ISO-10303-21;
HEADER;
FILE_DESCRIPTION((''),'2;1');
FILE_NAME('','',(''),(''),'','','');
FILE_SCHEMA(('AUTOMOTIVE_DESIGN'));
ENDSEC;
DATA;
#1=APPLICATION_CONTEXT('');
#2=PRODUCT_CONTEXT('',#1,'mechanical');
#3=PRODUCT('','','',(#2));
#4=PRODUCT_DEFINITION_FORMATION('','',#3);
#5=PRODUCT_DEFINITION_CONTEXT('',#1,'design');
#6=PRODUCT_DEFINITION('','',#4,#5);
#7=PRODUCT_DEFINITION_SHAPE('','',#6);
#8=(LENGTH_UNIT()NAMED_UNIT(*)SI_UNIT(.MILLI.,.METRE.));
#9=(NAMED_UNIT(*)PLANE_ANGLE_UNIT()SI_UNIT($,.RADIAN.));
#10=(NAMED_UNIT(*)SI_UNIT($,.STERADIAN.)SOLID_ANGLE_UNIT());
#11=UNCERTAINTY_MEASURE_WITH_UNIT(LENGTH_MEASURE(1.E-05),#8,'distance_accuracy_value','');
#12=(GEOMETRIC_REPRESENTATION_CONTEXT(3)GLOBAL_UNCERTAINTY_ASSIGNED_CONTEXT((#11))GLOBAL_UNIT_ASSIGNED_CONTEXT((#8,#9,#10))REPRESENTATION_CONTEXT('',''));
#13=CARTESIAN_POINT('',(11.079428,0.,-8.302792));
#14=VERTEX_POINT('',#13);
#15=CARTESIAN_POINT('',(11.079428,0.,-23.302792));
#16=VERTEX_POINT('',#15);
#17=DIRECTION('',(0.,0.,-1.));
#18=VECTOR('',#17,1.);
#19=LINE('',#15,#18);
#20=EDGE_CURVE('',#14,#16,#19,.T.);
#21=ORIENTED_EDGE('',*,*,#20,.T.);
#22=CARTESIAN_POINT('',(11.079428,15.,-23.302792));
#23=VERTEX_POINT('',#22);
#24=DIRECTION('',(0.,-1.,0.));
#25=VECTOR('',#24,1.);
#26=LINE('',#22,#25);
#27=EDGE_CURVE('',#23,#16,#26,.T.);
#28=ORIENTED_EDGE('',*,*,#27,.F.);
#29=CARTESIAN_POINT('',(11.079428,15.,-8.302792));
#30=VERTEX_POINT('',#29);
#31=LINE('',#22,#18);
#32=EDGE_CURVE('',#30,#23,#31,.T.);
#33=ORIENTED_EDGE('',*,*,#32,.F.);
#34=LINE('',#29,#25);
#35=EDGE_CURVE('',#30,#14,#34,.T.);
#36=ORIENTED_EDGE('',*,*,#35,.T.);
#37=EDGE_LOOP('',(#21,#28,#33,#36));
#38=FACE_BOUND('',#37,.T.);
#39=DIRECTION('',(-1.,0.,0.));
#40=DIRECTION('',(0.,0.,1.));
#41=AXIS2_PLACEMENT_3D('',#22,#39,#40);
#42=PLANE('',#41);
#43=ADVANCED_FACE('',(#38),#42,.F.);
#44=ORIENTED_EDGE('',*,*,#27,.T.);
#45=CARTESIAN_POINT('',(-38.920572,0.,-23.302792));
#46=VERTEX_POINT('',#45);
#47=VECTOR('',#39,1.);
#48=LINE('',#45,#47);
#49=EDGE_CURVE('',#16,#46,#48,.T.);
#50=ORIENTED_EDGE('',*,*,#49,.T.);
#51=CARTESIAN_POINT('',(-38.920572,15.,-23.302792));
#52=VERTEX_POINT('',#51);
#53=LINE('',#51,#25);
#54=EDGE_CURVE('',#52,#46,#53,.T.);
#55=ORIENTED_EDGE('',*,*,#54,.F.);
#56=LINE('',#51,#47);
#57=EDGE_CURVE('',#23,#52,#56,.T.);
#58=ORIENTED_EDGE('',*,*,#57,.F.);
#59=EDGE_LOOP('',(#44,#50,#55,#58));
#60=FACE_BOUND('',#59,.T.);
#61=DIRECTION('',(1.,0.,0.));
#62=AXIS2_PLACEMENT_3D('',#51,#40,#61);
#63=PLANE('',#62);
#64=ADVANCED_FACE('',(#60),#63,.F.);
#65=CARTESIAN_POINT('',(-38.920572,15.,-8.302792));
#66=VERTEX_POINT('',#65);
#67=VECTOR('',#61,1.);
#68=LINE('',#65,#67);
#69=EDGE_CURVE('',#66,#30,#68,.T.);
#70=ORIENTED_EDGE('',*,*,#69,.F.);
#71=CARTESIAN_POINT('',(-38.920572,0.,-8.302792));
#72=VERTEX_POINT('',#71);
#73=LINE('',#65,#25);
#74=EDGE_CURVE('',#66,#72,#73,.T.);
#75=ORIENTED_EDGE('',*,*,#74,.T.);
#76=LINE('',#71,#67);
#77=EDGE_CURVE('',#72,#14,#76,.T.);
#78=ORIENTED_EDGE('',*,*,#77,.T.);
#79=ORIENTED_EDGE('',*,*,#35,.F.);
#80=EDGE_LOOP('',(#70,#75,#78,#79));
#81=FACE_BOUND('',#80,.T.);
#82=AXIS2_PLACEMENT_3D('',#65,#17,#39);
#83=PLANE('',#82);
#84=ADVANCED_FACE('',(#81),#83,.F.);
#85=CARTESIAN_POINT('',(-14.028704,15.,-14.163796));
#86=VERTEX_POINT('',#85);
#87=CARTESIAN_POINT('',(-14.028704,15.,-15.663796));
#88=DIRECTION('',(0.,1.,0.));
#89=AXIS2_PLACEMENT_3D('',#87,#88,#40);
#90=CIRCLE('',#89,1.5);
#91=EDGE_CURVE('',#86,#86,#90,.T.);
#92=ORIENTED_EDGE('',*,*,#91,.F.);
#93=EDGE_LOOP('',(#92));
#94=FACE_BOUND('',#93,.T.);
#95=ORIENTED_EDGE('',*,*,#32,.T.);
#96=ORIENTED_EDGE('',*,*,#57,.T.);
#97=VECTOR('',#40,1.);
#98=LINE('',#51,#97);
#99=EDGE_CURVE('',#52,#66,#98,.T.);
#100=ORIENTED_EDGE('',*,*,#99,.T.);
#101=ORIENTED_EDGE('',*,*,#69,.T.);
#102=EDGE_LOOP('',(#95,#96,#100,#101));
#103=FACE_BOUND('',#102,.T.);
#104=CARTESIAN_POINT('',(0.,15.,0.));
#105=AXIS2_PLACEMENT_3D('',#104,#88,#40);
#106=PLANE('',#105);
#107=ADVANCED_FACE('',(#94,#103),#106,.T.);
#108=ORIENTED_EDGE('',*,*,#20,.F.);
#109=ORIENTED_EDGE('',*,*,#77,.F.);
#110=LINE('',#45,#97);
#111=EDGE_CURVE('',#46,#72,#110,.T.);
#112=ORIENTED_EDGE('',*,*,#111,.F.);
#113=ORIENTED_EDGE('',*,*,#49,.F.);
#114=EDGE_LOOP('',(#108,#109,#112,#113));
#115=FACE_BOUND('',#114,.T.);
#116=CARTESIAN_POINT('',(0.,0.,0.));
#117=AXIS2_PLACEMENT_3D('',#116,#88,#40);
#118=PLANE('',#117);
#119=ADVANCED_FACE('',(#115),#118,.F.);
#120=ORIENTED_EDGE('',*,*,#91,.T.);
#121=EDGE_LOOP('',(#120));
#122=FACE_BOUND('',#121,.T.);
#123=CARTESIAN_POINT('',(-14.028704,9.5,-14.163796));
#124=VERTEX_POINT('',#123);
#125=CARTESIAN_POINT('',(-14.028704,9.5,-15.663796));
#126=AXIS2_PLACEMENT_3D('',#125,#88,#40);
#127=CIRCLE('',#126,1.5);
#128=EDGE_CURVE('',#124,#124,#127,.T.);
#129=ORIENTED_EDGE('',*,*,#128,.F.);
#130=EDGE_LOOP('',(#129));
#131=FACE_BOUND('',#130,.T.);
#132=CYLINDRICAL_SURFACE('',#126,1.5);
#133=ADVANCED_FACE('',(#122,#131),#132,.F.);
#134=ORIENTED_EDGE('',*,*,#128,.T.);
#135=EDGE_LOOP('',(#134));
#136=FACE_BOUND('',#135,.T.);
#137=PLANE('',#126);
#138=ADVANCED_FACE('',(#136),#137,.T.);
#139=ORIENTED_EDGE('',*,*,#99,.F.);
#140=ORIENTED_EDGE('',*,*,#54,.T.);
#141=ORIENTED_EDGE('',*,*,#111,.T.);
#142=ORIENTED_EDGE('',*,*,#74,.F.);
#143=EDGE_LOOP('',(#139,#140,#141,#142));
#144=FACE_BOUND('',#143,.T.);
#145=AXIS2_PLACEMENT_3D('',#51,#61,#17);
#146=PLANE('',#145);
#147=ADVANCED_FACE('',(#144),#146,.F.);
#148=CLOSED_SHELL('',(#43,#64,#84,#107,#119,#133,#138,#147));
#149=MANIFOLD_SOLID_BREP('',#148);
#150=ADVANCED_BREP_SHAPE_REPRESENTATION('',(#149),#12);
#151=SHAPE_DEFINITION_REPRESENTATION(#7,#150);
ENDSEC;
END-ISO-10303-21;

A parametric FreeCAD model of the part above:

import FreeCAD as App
import Part
import Sketcher
from FreeCAD import Vector


def add_polygon(sketch, points):
    """Adds a closed chain of lines whose ends are joined by coincident constraints."""
    first, n = sketch.GeometryCount, len(points)
    for a, b in zip(points, points[1:] + points[:1]):
        sketch.addGeometry(Part.LineSegment(App.Vector(*a, 0), App.Vector(*b, 0)), False)
    for i in range(n):
        sketch.addConstraint(Sketcher.Constraint("Coincident", first + i, 2, first + (i + 1) % n, 1))

doc = App.newDocument("Part")
body = doc.addObject("PartDesign::Body", "Body")

sketch1 = doc.addObject("Sketcher::SketchObject", "Sketch")
body.addObject(sketch1)
sketch1.AttachmentSupport = (doc.XZ_Plane, [""])
sketch1.MapMode = "FlatFace"
add_polygon(sketch1, [(-39, -23), (-39, -8), (11, -8), (11, -23)])
sketch1.addConstraint(Sketcher.Constraint("Vertical", 0))
sketch1.addConstraint(Sketcher.Constraint("Horizontal", 1))
sketch1.addConstraint(Sketcher.Constraint("Vertical", 2))
sketch1.addConstraint(Sketcher.Constraint("Horizontal", 3))
sketch1.addConstraint(Sketcher.Constraint("DistanceX", 1, 1, 1, 2, 50.0))
sketch1.addConstraint(Sketcher.Constraint("DistanceY", 0, 1, 0, 2, 15.0))
sketch1.addConstraint(Sketcher.Constraint("DistanceX", 0, 2, -1, 1, 38.920572))
sketch1.addConstraint(Sketcher.Constraint("DistanceY", 0, 2, -1, 1, 8.302792))
pad1 = doc.addObject("PartDesign::Pad", "Pad")
body.addObject(pad1)
pad1.Profile = sketch1
pad1.Length = 15
pad1.Reversed = True

sketch2 = doc.addObject("Sketcher::SketchObject", "Sketch001")
body.addObject(sketch2)
sketch2.AttachmentSupport = (doc.XZ_Plane, [""])
sketch2.MapMode = "FlatFace"
sketch2.AttachmentOffset = App.Placement(Vector(0, 0, -15), App.Rotation())
sketch2.addGeometry(Part.Circle(Vector(-14, -15.7, 0), Vector(0, 0, 1), 1.5), False)
sketch2.addConstraint(Sketcher.Constraint("Diameter", 0, 3.0))
sketch2.addConstraint(Sketcher.Constraint("DistanceX", 0, 3, -1, 1, 14.028704))
sketch2.addConstraint(Sketcher.Constraint("DistanceY", 0, 3, -1, 1, 15.663796))
pocket1 = doc.addObject("PartDesign::Pocket", "Pocket")
body.addObject(pocket1)
pocket1.Profile = sketch2
pocket1.Length = 5.5
pocket1.Reversed = True

doc.recompute()
